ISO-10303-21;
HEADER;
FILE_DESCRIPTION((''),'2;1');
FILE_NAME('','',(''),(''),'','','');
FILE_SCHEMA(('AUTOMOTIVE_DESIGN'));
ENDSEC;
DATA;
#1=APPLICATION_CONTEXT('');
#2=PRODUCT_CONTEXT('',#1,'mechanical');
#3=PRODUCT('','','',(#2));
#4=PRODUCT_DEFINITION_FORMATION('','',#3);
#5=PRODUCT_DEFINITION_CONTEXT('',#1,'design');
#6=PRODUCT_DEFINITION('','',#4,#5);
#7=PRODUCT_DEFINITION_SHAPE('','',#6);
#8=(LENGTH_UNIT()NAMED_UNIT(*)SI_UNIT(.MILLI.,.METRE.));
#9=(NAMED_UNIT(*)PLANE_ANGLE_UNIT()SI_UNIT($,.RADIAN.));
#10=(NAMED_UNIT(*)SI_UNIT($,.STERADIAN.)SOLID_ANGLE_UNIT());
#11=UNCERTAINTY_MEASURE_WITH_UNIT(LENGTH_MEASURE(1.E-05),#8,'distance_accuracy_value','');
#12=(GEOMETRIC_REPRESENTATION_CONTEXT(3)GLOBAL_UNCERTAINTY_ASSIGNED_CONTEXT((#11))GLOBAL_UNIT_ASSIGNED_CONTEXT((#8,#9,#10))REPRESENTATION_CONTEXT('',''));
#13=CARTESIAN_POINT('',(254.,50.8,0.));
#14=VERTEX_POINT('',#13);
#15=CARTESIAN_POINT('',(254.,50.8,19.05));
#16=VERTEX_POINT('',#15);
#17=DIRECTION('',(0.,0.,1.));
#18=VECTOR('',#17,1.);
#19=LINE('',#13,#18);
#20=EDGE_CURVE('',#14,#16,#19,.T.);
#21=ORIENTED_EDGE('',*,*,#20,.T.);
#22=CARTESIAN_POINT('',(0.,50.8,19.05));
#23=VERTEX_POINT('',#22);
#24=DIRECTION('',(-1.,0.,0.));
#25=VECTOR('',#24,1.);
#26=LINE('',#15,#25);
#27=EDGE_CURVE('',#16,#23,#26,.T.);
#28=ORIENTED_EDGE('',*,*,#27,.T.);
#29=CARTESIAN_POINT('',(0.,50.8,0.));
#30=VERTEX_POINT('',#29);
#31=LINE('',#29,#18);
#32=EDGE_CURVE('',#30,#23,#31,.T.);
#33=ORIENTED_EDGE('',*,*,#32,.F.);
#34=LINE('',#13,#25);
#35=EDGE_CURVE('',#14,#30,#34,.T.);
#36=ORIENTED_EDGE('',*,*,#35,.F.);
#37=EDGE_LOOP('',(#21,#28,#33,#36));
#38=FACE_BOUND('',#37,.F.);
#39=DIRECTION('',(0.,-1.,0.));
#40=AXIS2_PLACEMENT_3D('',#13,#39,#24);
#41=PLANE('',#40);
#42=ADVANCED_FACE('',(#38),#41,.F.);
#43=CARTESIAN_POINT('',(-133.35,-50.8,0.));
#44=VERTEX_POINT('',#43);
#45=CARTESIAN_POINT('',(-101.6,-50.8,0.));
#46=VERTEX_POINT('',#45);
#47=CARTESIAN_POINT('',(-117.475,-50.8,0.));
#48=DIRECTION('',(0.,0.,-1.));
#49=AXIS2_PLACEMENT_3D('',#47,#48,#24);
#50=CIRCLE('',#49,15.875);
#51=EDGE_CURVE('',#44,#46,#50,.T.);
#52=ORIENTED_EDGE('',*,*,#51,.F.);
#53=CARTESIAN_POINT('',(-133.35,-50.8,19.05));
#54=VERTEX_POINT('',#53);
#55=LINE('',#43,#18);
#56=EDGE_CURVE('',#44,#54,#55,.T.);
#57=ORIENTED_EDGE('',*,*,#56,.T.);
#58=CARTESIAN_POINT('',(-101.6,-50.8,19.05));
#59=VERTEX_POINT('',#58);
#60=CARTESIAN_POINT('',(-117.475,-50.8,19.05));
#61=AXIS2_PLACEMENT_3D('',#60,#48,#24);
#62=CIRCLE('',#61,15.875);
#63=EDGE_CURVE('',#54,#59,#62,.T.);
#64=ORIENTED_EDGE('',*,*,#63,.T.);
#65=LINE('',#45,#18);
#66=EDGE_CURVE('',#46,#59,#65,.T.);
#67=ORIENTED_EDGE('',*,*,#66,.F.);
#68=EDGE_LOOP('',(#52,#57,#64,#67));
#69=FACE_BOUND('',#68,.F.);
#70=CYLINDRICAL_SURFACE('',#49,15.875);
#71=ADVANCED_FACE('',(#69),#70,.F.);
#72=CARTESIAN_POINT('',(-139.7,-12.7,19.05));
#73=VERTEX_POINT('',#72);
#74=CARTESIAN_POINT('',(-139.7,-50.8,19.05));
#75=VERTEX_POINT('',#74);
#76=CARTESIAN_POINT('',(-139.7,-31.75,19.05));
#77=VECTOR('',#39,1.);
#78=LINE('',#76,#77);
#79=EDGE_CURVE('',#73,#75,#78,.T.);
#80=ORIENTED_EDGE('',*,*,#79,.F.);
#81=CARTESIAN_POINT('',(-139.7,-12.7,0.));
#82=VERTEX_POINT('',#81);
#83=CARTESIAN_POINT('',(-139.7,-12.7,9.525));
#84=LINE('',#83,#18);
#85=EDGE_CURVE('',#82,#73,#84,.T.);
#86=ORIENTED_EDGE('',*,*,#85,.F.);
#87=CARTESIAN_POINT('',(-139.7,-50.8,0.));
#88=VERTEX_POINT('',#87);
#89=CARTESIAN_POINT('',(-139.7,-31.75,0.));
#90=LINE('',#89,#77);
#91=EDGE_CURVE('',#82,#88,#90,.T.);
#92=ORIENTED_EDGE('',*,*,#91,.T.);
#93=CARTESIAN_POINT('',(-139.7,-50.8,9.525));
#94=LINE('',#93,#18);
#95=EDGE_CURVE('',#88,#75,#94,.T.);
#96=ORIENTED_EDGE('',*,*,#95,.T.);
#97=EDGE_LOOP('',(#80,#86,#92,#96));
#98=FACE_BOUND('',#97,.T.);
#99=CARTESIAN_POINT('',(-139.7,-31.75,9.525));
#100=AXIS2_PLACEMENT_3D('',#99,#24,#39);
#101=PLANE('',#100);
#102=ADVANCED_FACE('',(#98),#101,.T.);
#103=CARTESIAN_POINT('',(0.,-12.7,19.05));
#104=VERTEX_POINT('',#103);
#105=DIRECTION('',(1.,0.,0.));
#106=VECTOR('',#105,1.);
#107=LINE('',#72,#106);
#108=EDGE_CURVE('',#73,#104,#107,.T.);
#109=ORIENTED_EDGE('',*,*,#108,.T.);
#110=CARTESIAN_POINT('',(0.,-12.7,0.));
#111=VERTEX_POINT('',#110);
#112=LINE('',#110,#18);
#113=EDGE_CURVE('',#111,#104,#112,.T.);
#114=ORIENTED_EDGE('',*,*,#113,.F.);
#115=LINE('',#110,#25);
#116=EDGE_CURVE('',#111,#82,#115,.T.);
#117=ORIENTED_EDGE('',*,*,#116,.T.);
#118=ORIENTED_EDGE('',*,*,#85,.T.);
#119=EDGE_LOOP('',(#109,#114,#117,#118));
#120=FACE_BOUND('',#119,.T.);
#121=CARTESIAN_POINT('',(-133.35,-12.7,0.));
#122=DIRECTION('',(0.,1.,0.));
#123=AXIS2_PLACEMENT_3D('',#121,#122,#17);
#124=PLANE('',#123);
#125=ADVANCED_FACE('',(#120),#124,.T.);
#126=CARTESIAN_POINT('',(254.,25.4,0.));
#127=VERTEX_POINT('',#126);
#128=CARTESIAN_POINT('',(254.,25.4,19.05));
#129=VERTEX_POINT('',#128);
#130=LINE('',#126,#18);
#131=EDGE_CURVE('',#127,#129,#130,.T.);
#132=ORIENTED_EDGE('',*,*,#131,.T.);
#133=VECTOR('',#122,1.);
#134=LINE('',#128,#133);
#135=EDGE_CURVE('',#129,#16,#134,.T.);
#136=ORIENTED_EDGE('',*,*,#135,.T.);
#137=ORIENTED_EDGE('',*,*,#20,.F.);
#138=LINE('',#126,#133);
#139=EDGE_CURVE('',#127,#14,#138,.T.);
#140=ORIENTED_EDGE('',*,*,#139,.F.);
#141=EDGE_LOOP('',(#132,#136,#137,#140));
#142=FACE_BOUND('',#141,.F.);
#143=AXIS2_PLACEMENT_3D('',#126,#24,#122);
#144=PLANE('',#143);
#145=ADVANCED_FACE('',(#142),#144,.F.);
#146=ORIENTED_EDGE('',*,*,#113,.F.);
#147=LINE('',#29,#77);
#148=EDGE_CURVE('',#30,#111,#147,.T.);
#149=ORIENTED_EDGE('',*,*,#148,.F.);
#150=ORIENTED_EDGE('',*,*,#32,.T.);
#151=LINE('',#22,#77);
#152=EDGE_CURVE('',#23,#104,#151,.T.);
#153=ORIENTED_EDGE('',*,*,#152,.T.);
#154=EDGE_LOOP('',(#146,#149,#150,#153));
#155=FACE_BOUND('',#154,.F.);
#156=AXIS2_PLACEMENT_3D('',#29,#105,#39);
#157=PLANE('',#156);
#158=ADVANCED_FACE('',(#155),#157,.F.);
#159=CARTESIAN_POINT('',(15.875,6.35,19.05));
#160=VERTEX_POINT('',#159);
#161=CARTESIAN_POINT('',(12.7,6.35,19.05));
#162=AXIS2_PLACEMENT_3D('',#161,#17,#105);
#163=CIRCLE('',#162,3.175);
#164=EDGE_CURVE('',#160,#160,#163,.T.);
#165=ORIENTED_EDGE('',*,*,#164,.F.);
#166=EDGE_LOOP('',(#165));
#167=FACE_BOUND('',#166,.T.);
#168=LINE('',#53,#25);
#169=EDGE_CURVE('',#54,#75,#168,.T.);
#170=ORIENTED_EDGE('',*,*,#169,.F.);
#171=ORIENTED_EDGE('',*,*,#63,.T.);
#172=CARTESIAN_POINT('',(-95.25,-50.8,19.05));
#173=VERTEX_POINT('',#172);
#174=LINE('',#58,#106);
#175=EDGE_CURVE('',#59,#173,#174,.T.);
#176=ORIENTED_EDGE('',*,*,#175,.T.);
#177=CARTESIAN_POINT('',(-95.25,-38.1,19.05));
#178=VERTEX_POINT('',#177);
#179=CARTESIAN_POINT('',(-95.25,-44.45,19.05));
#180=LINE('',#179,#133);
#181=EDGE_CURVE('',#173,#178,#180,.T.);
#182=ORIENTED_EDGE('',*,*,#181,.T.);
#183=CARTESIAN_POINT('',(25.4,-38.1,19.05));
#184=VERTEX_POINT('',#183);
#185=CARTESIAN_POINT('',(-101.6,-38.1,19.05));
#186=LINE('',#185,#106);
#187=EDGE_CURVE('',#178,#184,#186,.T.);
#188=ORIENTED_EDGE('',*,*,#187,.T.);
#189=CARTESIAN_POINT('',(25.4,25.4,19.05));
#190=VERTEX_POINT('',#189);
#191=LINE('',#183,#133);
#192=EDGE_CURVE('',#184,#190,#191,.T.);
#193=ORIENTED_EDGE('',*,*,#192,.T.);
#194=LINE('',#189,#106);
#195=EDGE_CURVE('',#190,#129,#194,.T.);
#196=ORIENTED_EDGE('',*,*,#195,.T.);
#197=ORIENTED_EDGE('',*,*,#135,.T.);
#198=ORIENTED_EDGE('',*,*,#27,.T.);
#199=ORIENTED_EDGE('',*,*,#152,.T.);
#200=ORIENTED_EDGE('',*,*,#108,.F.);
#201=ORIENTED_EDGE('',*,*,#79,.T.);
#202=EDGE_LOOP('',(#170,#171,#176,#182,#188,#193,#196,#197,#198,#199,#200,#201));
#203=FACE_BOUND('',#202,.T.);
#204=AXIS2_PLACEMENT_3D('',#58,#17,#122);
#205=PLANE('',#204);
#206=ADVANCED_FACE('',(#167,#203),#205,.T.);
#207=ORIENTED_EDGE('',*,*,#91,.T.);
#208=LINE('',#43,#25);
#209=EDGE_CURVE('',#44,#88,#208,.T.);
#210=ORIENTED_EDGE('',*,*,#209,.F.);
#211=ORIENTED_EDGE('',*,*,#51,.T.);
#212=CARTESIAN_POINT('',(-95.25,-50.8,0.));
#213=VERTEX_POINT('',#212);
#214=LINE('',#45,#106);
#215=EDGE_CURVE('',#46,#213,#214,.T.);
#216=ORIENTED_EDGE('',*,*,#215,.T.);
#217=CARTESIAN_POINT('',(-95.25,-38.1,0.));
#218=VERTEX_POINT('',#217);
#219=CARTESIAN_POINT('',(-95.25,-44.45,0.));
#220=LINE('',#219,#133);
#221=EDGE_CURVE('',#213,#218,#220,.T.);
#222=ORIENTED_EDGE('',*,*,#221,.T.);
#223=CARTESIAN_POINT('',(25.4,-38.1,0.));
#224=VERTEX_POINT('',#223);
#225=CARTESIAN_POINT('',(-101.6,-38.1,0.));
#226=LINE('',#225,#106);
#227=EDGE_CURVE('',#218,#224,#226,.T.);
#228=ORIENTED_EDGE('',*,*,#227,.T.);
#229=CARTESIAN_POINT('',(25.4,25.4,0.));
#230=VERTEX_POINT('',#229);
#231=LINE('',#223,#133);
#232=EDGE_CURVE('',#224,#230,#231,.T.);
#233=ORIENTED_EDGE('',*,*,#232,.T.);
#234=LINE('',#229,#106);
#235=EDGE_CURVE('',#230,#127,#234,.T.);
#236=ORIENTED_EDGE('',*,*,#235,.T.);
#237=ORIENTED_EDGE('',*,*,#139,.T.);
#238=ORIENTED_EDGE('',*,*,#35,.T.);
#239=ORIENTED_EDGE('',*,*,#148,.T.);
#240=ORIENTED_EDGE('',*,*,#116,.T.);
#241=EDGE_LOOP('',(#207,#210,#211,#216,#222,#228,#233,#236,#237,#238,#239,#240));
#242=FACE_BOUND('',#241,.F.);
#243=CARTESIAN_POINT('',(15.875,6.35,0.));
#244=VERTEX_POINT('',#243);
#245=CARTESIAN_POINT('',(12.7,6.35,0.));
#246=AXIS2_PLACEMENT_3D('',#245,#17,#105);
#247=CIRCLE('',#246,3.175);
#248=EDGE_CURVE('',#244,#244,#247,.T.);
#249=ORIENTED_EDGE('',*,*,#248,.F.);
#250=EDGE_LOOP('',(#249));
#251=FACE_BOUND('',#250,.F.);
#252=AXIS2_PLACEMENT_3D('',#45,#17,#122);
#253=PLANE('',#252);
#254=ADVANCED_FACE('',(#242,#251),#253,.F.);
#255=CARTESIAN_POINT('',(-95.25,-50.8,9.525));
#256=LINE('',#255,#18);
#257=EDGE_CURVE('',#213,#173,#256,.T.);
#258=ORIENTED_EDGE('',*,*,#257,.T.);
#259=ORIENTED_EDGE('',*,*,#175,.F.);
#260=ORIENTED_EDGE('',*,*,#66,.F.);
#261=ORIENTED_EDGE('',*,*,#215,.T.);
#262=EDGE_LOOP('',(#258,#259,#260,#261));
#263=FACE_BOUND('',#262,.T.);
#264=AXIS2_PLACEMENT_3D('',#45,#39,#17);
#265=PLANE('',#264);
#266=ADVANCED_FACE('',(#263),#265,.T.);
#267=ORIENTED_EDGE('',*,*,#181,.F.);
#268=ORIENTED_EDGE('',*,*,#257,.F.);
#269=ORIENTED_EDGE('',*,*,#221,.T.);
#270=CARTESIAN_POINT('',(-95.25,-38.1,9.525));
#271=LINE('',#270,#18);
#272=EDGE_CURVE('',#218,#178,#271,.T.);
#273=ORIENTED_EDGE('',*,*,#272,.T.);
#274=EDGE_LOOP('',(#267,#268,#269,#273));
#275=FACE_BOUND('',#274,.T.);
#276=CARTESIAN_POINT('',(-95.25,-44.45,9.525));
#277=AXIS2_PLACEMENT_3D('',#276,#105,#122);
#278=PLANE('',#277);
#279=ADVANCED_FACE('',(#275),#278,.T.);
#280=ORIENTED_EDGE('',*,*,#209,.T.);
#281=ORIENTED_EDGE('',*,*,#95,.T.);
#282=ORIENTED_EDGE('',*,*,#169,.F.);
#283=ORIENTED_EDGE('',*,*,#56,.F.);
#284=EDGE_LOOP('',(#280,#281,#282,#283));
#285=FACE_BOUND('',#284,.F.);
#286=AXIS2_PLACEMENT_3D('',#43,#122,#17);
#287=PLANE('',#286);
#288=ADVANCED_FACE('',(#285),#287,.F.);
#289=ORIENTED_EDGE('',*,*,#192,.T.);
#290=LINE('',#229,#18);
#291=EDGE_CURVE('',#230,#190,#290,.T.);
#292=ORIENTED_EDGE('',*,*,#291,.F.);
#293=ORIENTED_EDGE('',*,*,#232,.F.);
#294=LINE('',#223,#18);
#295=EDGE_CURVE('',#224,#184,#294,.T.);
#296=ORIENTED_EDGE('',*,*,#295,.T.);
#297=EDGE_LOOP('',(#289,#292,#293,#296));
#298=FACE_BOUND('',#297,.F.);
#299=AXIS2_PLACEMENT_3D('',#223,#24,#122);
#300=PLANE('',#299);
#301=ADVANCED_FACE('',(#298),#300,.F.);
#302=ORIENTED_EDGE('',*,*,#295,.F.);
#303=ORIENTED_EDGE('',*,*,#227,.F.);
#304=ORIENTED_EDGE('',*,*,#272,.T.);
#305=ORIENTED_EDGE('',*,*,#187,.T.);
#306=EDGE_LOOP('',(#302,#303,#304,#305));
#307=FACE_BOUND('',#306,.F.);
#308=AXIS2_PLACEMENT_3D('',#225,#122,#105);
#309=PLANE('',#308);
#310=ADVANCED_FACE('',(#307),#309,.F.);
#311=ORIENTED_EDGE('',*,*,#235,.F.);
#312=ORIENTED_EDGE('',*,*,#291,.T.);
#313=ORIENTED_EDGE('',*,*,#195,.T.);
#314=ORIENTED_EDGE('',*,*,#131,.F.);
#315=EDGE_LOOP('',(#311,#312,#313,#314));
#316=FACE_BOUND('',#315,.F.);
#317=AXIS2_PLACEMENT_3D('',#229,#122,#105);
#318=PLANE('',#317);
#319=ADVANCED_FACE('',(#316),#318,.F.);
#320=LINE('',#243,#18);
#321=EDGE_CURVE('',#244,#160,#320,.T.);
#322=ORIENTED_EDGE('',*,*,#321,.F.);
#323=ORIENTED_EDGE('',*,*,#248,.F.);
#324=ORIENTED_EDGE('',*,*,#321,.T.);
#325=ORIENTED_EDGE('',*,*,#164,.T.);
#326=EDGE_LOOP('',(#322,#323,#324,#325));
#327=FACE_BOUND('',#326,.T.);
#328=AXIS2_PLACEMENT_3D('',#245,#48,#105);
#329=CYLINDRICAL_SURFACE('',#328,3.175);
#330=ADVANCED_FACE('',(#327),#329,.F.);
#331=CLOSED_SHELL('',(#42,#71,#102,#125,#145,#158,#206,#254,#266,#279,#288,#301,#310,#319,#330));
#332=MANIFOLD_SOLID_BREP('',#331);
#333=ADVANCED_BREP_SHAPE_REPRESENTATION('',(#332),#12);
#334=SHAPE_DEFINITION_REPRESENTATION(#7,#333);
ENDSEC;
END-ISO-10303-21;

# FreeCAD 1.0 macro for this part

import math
import FreeCAD as App
import Part
import Sketcher
from FreeCAD import Vector
Q = App.Units.Quantity

doc = App.newDocument("Part")
body = doc.addObject("PartDesign::Body", "Body")

sketch1 = body.newObject("Sketcher::SketchObject", "Sketch")
sketch1.AttachmentSupport = (doc.getObject("XY_Plane"), [""])
sketch1.MapMode = "FlatFace"
sketch1.addGeometry([
    Part.LineSegment(Vector(0, 50.8, 0), Vector(0, -12.7, 0)),
    Part.LineSegment(Vector(0, -12.7, 0), Vector(-133.3, -12.7, 0)),
    Part.LineSegment(Vector(-133.3, -12.7, 0), Vector(-133.3, -50.8, 0)),
    Part.ArcOfCircle(Part.Circle(Vector(-117.5, -50.8, 0), Vector(0, 0, 1), 15.9), math.radians(0), math.radians(180)),
    Part.LineSegment(Vector(-101.6, -50.8, 0), Vector(-101.6, -38.1, 0)),
    Part.LineSegment(Vector(-101.6, -38.1, 0), Vector(25.4, -38.1, 0)),
    Part.LineSegment(Vector(25.4, -38.1, 0), Vector(25.4, 25.4, 0)),
    Part.LineSegment(Vector(25.4, 25.4, 0), Vector(254, 25.4, 0)),
    Part.LineSegment(Vector(254, 25.4, 0), Vector(254, 50.8, 0)),
    Part.LineSegment(Vector(254, 50.8, 0), Vector(0, 50.8, 0)),
    Part.Circle(Vector(12.7, 6.3, 0), Vector(0, 0, 1), 3.2),
], False)
sketch1.addConstraint([
    Sketcher.Constraint("Coincident", 0, 2, 1, 1),
    Sketcher.Constraint("Coincident", 1, 2, 2, 1),
    Sketcher.Constraint("Tangent", 2, 2, 3, 2),
    Sketcher.Constraint("Tangent", 3, 1, 4, 1),
    Sketcher.Constraint("Coincident", 4, 2, 5, 1),
    Sketcher.Constraint("Coincident", 5, 2, 6, 1),
    Sketcher.Constraint("Coincident", 6, 2, 7, 1),
    Sketcher.Constraint("Coincident", 7, 2, 8, 1),
    Sketcher.Constraint("Coincident", 8, 2, 9, 1),
    Sketcher.Constraint("Coincident", 9, 2, 0, 1),
    Sketcher.Constraint("Vertical", 0),
    Sketcher.Constraint("Horizontal", 1),
    Sketcher.Constraint("Vertical", 2),
    Sketcher.Constraint("Vertical", 4),
    Sketcher.Constraint("Horizontal", 5),
    Sketcher.Constraint("Vertical", 6),
    Sketcher.Constraint("Horizontal", 7),
    Sketcher.Constraint("Vertical", 8),
    Sketcher.Constraint("Horizontal", 9),
    Sketcher.Constraint("PointOnObject", 0, 2, -2),
    Sketcher.Constraint("Equal", 0, 6),
    Sketcher.Constraint("Diameter", 10, Q("0.25 in")),
    Sketcher.Constraint("DistanceX", 5, 1, 5, 2, Q("5 in")),
    Sketcher.Constraint("DistanceX", 7, 1, 7, 2, Q("9 in")),
    Sketcher.Constraint("DistanceX", 9, 2, 9, 1, Q("10 in")),
    Sketcher.Constraint("DistanceY", 8, 1, 8, 2, Q("1 in")),
    Sketcher.Constraint("DistanceY", 0, 2, 0, 1, Q("2.5 in")),
    Sketcher.Constraint("DistanceY", 2, 2, 2, 1, Q("1.5 in")),
    Sketcher.Constraint("DistanceY", 3, 3, -1, 1, Q("2 in")),
    Sketcher.Constraint("Radius", 3, Q("0.625 in")),
    Sketcher.Constraint("DistanceX", -1, 1, 10, 3, Q("0.5 in")),
    Sketcher.Constraint("DistanceY", -1, 1, 10, 3, Q("0.25 in")),
])
pad1 = body.newObject("PartDesign::Pad", "Pad")
pad1.Profile = sketch1
pad1.Length = Q("0.75 in")

sketch2 = body.newObject("Sketcher::SketchObject", "Sketch001")
sketch2.AttachmentSupport = (doc.getObject("YZ_Plane"), [""])
sketch2.MapMode = "FlatFace"
sketch2.AttachmentOffset = App.Placement(Vector(0, 0, -5.25 * 25.4), App.Rotation())
sketch2.addGeometry([
    Part.LineSegment(Vector(-13, 19, 0), Vector(-13, 0, 0)),
    Part.LineSegment(Vector(-13, 0, 0), Vector(-51, 0, 0)),
    Part.LineSegment(Vector(-51, 0, 0), Vector(-51, 19, 0)),
    Part.LineSegment(Vector(-51, 19, 0), Vector(-13, 19, 0)),
], False)
sketch2.addConstraint([
    Sketcher.Constraint("Coincident", 0, 2, 1, 1),
    Sketcher.Constraint("Coincident", 1, 2, 2, 1),
    Sketcher.Constraint("Coincident", 2, 2, 3, 1),
    Sketcher.Constraint("Coincident", 3, 2, 0, 1),
    Sketcher.Constraint("Vertical", 0),
    Sketcher.Constraint("Horizontal", 1),
    Sketcher.Constraint("Vertical", 2),
    Sketcher.Constraint("Horizontal", 3),
    Sketcher.Constraint("PointOnObject", 0, 2, -1),
    Sketcher.Constraint("DistanceX", 1, 2, 1, 1, Q("1.5 in")),
    Sketcher.Constraint("DistanceX", 1, 2, -1, 1, Q("2 in")),
    Sketcher.Constraint("DistanceY", 0, 2, 0, 1, Q("0.75 in")),
])
pad2 = body.newObject("PartDesign::Pad", "Pad001")
pad2.Profile = sketch2
pad2.Length = Q("0.25 in")
pad2.Reversed = True

sketch3 = body.newObject("Sketcher::SketchObject", "Sketch002")
sketch3.AttachmentSupport = (doc.getObject("YZ_Plane"), [""])
sketch3.MapMode = "FlatFace"
sketch3.AttachmentOffset = App.Placement(Vector(0, 0, -4 * 25.4), App.Rotation())
sketch3.addGeometry([
    Part.LineSegment(Vector(-51, 19, 0), Vector(-51, 0, 0)),
    Part.LineSegment(Vector(-51, 0, 0), Vector(-38, 0, 0)),
    Part.LineSegment(Vector(-38, 0, 0), Vector(-38, 19, 0)),
    Part.LineSegment(Vector(-38, 19, 0), Vector(-51, 19, 0)),
], False)
sketch3.addConstraint([
    Sketcher.Constraint("Coincident", 0, 2, 1, 1),
    Sketcher.Constraint("Coincident", 1, 2, 2, 1),
    Sketcher.Constraint("Coincident", 2, 2, 3, 1),
    Sketcher.Constraint("Coincident", 3, 2, 0, 1),
    Sketcher.Constraint("Vertical", 0),
    Sketcher.Constraint("Horizontal", 1),
    Sketcher.Constraint("Vertical", 2),
    Sketcher.Constraint("Horizontal", 3),
    Sketcher.Constraint("PointOnObject", 0, 2, -1),
    Sketcher.Constraint("DistanceX", 1, 1, 1, 2, Q("0.5 in")),
    Sketcher.Constraint("DistanceX", 0, 2, -1, 1, Q("2 in")),
    Sketcher.Constraint("DistanceY", 0, 2, 0, 1, Q("0.75 in")),
])
pad3 = body.newObject("PartDesign::Pad", "Pad002")
pad3.Profile = sketch3
pad3.Length = Q("0.25 in")

doc.recompute()
